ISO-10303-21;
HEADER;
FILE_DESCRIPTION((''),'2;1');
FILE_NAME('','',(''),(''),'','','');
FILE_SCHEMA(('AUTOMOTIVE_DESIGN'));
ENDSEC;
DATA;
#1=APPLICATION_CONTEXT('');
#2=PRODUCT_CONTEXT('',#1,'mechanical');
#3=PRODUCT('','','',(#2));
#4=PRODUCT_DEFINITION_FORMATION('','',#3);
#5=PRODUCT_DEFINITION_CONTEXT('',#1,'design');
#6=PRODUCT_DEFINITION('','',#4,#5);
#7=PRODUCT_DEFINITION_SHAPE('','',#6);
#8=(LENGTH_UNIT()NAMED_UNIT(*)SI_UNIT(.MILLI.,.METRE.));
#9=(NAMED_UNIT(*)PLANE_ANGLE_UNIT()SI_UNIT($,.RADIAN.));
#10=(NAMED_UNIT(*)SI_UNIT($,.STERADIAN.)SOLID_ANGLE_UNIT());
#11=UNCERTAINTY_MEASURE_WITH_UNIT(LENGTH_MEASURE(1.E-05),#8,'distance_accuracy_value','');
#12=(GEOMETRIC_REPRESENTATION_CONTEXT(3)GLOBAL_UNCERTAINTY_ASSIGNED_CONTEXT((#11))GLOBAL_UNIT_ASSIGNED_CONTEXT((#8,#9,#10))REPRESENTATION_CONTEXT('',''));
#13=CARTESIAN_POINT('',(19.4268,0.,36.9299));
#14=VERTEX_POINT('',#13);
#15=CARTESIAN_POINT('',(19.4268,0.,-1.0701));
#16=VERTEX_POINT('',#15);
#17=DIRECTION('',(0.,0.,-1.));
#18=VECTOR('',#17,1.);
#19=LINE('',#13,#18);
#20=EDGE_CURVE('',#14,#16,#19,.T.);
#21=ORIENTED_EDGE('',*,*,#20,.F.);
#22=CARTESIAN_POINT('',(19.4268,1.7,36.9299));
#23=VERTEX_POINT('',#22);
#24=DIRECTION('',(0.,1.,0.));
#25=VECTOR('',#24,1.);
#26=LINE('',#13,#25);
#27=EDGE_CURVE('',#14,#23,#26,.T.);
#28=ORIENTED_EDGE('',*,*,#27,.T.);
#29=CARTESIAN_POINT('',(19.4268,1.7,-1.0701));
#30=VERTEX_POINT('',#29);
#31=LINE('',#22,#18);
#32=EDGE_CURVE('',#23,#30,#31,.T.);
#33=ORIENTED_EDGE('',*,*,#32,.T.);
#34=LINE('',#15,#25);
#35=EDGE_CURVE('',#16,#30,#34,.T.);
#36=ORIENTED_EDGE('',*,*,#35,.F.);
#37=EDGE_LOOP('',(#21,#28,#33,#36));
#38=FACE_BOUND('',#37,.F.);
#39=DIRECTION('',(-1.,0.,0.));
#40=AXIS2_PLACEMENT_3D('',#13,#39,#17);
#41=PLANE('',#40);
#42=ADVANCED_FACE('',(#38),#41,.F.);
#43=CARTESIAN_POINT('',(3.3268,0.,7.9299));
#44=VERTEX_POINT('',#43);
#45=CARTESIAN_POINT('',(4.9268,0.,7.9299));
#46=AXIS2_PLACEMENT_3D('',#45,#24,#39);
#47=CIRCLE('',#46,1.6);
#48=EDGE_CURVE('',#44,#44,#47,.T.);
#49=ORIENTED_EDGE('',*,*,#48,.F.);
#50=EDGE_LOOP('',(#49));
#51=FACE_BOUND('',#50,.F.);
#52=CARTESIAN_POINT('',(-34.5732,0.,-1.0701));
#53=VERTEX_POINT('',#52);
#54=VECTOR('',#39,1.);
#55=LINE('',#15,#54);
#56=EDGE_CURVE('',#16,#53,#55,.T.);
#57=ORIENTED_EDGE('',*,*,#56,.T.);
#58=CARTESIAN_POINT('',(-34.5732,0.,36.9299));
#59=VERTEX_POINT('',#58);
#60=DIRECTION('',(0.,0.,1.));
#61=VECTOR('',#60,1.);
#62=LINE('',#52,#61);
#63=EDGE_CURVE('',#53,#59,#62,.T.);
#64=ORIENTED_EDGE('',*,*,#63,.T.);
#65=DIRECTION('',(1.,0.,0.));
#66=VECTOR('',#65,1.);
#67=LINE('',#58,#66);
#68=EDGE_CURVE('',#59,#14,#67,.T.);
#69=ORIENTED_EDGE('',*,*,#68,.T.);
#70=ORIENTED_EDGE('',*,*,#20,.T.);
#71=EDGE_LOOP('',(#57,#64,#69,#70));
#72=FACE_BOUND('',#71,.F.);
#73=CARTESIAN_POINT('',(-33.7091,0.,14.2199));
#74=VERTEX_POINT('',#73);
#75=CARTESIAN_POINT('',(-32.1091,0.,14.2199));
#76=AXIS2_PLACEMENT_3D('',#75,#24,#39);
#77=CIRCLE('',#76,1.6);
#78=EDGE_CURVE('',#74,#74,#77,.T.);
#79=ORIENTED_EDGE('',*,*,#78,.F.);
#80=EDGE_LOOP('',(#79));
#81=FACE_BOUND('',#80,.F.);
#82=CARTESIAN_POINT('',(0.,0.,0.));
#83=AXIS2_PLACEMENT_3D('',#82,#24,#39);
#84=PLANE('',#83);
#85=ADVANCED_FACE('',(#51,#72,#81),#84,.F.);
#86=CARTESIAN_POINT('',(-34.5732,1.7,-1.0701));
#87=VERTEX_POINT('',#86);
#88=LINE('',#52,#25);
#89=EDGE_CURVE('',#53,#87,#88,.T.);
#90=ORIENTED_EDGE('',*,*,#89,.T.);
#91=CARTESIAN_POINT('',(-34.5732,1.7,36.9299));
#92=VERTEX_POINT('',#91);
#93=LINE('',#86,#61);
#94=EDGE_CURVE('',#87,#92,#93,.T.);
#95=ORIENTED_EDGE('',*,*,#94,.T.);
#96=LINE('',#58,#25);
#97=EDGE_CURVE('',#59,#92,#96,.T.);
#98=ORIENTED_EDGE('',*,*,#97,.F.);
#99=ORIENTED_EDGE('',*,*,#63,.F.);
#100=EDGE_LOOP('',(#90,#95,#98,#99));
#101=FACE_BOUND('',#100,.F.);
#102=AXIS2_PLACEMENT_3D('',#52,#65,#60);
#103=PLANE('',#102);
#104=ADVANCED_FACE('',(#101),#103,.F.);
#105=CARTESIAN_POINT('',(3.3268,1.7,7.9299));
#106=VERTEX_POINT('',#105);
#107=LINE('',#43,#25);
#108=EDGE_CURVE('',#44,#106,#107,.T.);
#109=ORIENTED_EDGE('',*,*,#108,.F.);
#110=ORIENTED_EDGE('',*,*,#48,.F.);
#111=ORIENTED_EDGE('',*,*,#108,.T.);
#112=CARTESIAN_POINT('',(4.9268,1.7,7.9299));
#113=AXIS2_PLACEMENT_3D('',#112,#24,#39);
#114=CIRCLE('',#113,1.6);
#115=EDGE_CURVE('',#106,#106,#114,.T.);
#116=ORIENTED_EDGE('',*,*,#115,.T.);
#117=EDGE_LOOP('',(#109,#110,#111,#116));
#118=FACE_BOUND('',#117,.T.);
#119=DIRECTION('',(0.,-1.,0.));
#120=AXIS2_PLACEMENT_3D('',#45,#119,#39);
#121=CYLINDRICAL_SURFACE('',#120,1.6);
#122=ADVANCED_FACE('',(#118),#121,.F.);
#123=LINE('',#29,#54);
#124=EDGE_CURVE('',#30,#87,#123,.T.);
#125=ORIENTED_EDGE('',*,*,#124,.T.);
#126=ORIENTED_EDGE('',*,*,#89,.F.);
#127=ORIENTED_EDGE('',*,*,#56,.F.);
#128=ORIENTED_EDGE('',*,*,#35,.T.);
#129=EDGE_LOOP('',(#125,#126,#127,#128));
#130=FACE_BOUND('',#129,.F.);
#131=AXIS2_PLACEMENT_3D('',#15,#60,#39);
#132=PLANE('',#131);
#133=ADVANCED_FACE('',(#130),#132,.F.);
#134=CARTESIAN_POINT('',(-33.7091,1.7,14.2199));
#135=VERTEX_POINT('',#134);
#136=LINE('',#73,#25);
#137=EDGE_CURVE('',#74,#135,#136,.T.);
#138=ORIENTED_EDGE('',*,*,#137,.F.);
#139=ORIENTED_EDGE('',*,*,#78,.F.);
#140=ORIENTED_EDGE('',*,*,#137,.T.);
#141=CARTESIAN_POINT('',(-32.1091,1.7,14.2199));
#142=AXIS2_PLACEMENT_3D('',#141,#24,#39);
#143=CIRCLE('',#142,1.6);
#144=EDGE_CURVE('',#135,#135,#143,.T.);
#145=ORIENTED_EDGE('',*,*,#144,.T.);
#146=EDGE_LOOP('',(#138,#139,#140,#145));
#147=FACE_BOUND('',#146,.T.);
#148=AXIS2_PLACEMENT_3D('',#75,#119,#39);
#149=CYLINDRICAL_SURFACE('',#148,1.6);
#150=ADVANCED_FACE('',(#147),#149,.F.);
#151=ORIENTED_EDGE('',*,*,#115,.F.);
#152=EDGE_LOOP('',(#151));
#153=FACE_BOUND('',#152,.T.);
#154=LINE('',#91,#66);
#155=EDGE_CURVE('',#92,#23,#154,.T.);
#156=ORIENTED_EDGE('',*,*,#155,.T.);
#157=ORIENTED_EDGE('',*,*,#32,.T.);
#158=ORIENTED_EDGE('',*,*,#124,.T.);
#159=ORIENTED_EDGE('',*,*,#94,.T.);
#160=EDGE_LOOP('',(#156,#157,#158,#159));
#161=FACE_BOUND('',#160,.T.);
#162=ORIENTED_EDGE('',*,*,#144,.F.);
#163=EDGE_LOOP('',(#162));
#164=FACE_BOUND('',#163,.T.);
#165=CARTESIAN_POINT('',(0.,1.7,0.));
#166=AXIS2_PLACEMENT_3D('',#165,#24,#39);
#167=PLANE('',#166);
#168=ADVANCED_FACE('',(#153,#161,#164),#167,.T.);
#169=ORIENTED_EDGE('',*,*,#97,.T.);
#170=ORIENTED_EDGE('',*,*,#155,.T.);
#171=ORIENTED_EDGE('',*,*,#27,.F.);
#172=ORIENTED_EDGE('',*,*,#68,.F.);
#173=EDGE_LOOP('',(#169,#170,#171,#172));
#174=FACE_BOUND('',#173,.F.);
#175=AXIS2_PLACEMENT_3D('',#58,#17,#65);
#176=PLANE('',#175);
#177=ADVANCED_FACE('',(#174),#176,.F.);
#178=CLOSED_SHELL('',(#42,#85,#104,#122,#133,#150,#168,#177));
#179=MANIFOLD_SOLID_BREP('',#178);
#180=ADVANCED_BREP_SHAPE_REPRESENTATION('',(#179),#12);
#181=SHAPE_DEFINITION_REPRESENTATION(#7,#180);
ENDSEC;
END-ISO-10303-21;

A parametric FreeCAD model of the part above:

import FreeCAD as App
import Part
import Sketcher
Q = App.Units.Quantity


def add_polygon(sketch, points):
    """Adds a closed chain of lines whose ends are joined by coincident constraints."""
    first, n = sketch.GeometryCount, len(points)
    for a, b in zip(points, points[1:] + points[:1]):
        sketch.addGeometry(Part.LineSegment(App.Vector(*a, 0), App.Vector(*b, 0)), False)
    for i in range(n):
        sketch.addConstraint(Sketcher.Constraint("Coincident", first + i, 2, first + (i + 1) % n, 1))

doc = App.newDocument("Part")
body = doc.addObject("PartDesign::Body", "Body")

# Sketch on XZ plane
sketch1 = body.newObject("Sketcher::SketchObject", "Sketch")
sketch1.AttachmentSupport = (doc.getObject("XZ_Plane"), [""])
sketch1.MapMode = "FlatFace"
add_polygon(sketch1, [(19.4, 36.9), (19.4, -1.1), (-34.6, -1.1), (-34.6, 36.9)])  # lines 0-3
sketch1.addGeometry(Part.Circle(App.Vector(4.9, 7.9, 0), App.Vector(0, 0, 1), 1.6), False)  # 4
sketch1.addGeometry(Part.Circle(App.Vector(-32.1, 14.2, 0), App.Vector(0, 0, 1), 1.6), False)  # 5
sketch1.addConstraint(Sketcher.Constraint("Vertical", 0))
sketch1.addConstraint(Sketcher.Constraint("Horizontal", 1))
sketch1.addConstraint(Sketcher.Constraint("Vertical", 2))
sketch1.addConstraint(Sketcher.Constraint("Horizontal", 3))
sketch1.addConstraint(Sketcher.Constraint("Equal", 4, 5))
sketch1.addConstraint(Sketcher.Constraint("Diameter", 4, Q("3.2 mm")))
sketch1.addConstraint(Sketcher.Constraint("DistanceX", 1, 2, 1, 1, Q("54 mm")))
sketch1.addConstraint(Sketcher.Constraint("DistanceY", 0, 2, 0, 1, Q("38 mm")))
sketch1.addConstraint(Sketcher.Constraint("DistanceY", 0, 2, 4, 3, Q("9 mm")))
sketch1.addConstraint(Sketcher.Constraint("DistanceX", 4, 3, 0, 2, Q("14.5 mm")))
sketch1.addConstraint(Sketcher.Constraint("DistanceY", -1, 1, 4, 3, Q("7.93 mm")))
sketch1.addConstraint(Sketcher.Constraint("DistanceY", -1, 1, 5, 3, Q("14.22 mm")))
sketch1.addConstraint(Sketcher.Constraint("DistanceX", 5, 3, -1, 1, Q("32.109 mm")))
sketch1.addConstraint(Sketcher.Constraint("DistanceX", 5, 3, 4, 3, Q("37.036 mm")))
pad1 = body.newObject("PartDesign::Pad", "Pad")
pad1.Profile = sketch1
pad1.Length = 1.7
pad1.Reversed = True

doc.recompute()
